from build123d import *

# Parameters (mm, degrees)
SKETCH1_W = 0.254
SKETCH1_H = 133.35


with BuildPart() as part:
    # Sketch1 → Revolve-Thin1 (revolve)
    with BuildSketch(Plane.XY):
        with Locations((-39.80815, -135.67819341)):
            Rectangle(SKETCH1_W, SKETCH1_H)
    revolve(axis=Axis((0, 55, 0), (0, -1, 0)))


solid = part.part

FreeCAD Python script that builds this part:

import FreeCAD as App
import Part
import Sketcher
Q = App.Units.Quantity

doc = App.newDocument("Part")
params = doc.addObject("Spreadsheet::Sheet", "Params")
for row, (alias, value) in enumerate([
    ("sketch1_width", "0.01 in"),
    ("sketch1_height", "5.25 in"),
    ("revolution_angle", "360 deg"),
], start=1):
    params.set(f"A{row}", alias)
    params.set(f"B{row}", "=" + value)
    params.setAlias(f"B{row}", alias)

body = doc.addObject("PartDesign::Body", "Body")

# Sketch on XY plane
sketch1 = body.newObject("Sketcher::SketchObject", "Sketch")
sketch1.AttachmentSupport = (doc.getObject("XY_Plane"), [""])
sketch1.MapMode = "FlatFace"
sketch1.addGeometry(Part.LineSegment(App.Vector(-39.94, -69, 0), App.Vector(-39.94, -202.35, 0)), False)
sketch1.addGeometry(Part.LineSegment(App.Vector(-39.94, -202.35, 0), App.Vector(-39.68, -202.35, 0)), False)
sketch1.addGeometry(Part.LineSegment(App.Vector(-39.68, -202.35, 0), App.Vector(-39.68, -69, 0)), False)
sketch1.addGeometry(Part.LineSegment(App.Vector(-39.68, -69, 0), App.Vector(-39.94, -69, 0)), False)
sketch1.addConstraint(Sketcher.Constraint("Coincident", 0, 2, 1, 1))
sketch1.addConstraint(Sketcher.Constraint("Coincident", 1, 2, 2, 1))
sketch1.addConstraint(Sketcher.Constraint("Coincident", 2, 2, 3, 1))
sketch1.addConstraint(Sketcher.Constraint("Coincident", 3, 2, 0, 1))
sketch1.addConstraint(Sketcher.Constraint("Vertical", 0))
sketch1.addConstraint(Sketcher.Constraint("Horizontal", 1))
sketch1.addConstraint(Sketcher.Constraint("Vertical", 2))
sketch1.addConstraint(Sketcher.Constraint("Horizontal", 3))
sketch1.addConstraint(Sketcher.Constraint("DistanceX", 1, 1, 1, 2, Q("0.01 in")))
sketch1.addConstraint(Sketcher.Constraint("DistanceY", 0, 2, 0, 1, Q("5.25 in")))
sketch1.addConstraint(Sketcher.Constraint("DistanceX", 0, 2, -1, 1, Q("39.93515 mm")))
sketch1.addConstraint(Sketcher.Constraint("DistanceY", 0, 2, -1, 1, Q("202.353193 mm")))
sketch1.setExpression("Constraints[8]", "Params.sketch1_width")
sketch1.setExpression("Constraints[9]", "Params.sketch1_height")
revolution = body.newObject("PartDesign::Revolution", "Revolution")
revolution.Profile = sketch1
revolution.ReferenceAxis = (sketch1, ["V_Axis"])
revolution.setExpression("Angle", "Params.revolution_angle")

doc.recompute()
